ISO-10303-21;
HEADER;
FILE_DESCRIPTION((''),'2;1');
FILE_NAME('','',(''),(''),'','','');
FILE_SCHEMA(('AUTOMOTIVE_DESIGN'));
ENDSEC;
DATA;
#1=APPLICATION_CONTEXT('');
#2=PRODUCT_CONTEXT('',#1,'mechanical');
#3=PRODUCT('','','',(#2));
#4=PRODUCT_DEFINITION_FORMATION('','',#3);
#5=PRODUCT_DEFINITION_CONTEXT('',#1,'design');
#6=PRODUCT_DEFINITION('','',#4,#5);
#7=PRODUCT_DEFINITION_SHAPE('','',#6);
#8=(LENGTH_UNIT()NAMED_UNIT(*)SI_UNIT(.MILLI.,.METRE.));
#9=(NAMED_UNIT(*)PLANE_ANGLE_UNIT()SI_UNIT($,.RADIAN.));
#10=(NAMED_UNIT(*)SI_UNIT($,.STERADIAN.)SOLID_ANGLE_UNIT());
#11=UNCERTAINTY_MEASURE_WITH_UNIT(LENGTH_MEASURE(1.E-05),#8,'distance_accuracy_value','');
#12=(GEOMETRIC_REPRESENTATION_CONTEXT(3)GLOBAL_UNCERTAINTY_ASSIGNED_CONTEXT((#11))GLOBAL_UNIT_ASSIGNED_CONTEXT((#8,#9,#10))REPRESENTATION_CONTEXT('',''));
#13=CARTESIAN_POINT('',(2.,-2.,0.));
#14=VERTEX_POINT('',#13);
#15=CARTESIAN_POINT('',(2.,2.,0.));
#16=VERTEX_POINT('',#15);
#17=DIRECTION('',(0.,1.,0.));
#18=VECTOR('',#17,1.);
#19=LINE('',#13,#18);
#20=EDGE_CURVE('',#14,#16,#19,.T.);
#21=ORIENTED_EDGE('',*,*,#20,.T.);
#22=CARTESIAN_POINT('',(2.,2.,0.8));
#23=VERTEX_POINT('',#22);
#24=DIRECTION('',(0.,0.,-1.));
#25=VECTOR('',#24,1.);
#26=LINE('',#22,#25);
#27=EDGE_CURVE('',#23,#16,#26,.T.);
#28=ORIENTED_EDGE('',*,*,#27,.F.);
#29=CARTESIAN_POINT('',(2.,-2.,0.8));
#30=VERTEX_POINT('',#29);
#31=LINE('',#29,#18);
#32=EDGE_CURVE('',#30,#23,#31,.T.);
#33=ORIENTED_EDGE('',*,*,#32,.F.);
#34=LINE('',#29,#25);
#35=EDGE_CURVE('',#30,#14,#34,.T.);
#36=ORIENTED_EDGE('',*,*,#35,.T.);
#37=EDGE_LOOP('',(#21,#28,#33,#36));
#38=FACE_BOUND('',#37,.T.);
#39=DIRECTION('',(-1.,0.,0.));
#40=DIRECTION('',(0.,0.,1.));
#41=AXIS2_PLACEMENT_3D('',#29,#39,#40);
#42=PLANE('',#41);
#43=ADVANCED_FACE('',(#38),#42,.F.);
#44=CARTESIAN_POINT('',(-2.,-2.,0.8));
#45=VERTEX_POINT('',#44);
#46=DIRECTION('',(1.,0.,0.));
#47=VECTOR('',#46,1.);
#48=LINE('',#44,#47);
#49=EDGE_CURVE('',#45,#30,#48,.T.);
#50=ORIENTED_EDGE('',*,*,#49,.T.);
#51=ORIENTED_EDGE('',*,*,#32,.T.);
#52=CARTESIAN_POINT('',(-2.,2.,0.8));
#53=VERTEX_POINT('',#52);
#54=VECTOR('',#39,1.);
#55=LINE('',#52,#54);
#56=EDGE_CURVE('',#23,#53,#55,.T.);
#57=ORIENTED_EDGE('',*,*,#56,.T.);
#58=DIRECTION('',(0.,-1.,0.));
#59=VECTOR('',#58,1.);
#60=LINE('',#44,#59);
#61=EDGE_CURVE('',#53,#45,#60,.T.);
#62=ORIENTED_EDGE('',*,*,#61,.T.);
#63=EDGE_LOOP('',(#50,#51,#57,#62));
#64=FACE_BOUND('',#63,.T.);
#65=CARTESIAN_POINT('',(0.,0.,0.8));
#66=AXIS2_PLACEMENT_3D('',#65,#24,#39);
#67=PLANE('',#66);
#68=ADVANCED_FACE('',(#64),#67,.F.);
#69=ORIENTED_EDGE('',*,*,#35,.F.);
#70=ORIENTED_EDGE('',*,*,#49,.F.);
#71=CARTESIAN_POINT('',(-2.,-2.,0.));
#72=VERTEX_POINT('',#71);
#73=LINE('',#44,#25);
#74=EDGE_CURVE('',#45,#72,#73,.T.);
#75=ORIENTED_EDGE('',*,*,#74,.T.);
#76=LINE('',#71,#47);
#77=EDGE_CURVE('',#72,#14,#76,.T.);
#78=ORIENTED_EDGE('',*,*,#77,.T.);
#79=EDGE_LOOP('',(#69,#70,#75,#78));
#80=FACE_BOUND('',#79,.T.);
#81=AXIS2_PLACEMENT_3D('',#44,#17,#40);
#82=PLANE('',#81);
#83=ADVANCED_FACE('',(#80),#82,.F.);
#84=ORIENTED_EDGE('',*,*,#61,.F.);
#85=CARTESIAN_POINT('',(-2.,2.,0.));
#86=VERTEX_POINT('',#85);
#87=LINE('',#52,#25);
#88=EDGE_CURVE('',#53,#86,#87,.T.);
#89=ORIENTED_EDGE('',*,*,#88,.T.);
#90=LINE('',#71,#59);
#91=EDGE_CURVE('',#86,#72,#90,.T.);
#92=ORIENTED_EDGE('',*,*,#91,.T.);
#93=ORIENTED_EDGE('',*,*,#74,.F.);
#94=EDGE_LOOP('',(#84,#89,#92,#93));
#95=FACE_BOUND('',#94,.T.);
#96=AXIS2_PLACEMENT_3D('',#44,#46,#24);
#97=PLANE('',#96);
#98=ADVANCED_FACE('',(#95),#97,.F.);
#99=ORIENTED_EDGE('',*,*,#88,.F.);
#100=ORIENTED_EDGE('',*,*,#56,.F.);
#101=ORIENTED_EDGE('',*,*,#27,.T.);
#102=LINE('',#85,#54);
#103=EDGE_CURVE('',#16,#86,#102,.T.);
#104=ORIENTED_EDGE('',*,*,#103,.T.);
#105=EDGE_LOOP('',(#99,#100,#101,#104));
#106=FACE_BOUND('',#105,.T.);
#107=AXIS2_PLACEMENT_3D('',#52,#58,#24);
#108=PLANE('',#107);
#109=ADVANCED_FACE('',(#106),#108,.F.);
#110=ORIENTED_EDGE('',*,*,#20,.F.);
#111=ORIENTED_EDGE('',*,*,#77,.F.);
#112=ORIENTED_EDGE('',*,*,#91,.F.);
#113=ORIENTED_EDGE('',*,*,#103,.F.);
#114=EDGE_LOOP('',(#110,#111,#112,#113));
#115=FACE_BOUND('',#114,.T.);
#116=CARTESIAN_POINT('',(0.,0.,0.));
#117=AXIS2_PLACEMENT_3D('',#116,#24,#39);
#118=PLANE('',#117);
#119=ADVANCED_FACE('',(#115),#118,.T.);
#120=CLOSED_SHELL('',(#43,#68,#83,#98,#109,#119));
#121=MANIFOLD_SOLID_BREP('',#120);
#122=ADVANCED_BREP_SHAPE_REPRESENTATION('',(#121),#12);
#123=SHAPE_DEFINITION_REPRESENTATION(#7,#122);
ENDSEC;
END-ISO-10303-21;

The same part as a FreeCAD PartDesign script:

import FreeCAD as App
import Part
import Sketcher
from FreeCAD import Vector


def add_polygon(sketch, points):
    """Adds a closed chain of lines whose ends are joined by coincident constraints."""
    first, n = sketch.GeometryCount, len(points)
    for a, b in zip(points, points[1:] + points[:1]):
        sketch.addGeometry(Part.LineSegment(App.Vector(*a, 0), App.Vector(*b, 0)), False)
    for i in range(n):
        sketch.addConstraint(Sketcher.Constraint("Coincident", first + i, 2, first + (i + 1) % n, 1))

doc = App.newDocument("Part")
body = doc.addObject("PartDesign::Body", "Body")

sketch1 = doc.addObject("Sketcher::SketchObject", "Sketch")
body.addObject(sketch1)
sketch1.AttachmentSupport = (doc.XY_Plane, [""])
sketch1.MapMode = "FlatFace"
add_polygon(sketch1, [(-2, 2), (-2, -2), (2, -2), (2, 2)])
sketch1.addConstraint([
    Sketcher.Constraint("Vertical", 0),
    Sketcher.Constraint("Horizontal", 1),
    Sketcher.Constraint("Vertical", 2),
    Sketcher.Constraint("Horizontal", 3),
    Sketcher.Constraint("Symmetric", 0, 2, 2, 2, -1, 1),
    Sketcher.Constraint("Equal", 3, 0),
    Sketcher.Constraint("DistanceX", 1, 1, 1, 2, 4.0),
])
pad1 = doc.addObject("PartDesign::Pad", "Pad")
body.addObject(pad1)
pad1.Profile = sketch1
pad1.Length = 0.8

doc.recompute()
